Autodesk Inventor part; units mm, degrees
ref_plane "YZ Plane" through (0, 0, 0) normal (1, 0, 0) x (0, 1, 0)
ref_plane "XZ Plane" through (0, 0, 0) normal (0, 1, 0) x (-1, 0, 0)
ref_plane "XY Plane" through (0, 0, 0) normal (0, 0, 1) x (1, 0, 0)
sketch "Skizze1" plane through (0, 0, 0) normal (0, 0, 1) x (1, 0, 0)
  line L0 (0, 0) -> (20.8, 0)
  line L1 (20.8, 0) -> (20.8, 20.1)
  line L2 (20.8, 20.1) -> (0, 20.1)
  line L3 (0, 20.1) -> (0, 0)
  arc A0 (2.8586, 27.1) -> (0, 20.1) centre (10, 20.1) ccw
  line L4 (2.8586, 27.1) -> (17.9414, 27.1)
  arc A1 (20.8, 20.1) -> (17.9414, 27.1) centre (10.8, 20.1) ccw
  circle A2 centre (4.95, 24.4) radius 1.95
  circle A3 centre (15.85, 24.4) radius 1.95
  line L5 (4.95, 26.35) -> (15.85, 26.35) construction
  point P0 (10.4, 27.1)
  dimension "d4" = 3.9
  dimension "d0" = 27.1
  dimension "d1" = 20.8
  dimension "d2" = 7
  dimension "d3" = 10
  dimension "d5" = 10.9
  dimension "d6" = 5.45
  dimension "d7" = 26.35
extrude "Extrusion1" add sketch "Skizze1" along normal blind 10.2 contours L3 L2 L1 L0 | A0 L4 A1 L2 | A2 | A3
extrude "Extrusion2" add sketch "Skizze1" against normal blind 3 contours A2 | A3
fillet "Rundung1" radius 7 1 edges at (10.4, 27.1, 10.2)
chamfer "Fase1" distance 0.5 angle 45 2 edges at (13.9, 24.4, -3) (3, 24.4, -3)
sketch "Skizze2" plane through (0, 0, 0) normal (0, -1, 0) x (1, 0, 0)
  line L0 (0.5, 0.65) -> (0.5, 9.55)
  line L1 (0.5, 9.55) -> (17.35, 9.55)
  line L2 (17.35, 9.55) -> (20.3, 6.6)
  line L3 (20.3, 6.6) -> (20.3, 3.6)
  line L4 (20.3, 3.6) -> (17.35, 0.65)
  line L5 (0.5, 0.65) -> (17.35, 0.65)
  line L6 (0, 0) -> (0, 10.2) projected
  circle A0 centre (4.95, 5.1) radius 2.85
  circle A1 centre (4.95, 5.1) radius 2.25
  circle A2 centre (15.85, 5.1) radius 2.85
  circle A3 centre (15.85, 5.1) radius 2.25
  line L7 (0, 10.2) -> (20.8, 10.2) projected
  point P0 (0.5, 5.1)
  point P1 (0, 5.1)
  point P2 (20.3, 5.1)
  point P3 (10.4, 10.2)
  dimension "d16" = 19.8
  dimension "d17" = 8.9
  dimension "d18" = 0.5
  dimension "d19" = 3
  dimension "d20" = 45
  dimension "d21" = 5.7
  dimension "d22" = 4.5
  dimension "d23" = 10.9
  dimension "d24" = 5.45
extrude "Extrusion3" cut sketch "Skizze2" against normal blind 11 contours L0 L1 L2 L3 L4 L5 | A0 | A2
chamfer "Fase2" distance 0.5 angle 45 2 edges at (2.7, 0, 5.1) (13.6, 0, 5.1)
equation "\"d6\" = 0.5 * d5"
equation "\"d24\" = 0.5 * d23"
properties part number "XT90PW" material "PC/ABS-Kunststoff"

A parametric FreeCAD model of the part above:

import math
import FreeCAD as App
import Part
import Sketcher
Q = App.Units.Quantity


def edges_at(feature, points):
    """Names of the edges that pass closest to the given points."""
    edges = feature.Shape.Edges
    near = lambda p: min(range(len(edges)), key=lambda i: edges[i].distToShape(Part.Vertex(*p))[0])
    return sorted({f"Edge{near(p) + 1}" for p in points})

doc = App.newDocument("Part")
body = doc.addObject("PartDesign::Body", "Body")

sketch1 = body.newObject("Sketcher::SketchObject", "Sketch")
sketch1.AttachmentSupport = (doc.getObject("XY_Plane"), [""])
sketch1.MapMode = "FlatFace"
sketch1.addGeometry([
    Part.LineSegment(App.Vector(0, 20, 0), App.Vector(0, 0, 0)),
    Part.LineSegment(App.Vector(0, 0, 0), App.Vector(21, 0, 0)),
    Part.LineSegment(App.Vector(21, 0, 0), App.Vector(21, 20, 0)),
    Part.ArcOfCircle(Part.Circle(App.Vector(11, 20, 0), App.Vector(0, 0, 1), 10), math.radians(0), math.radians(44)),
    Part.LineSegment(App.Vector(18, 27, 0), App.Vector(3, 27, 0)),
    Part.ArcOfCircle(Part.Circle(App.Vector(10, 20, 0), App.Vector(0, 0, 1), 10), math.radians(136), math.radians(180)),
], False)
sketch1.addConstraint([
    Sketcher.Constraint("Coincident", 0, 2, 1, 1),
    Sketcher.Constraint("Coincident", 1, 2, 2, 1),
    Sketcher.Constraint("Tangent", 2, 2, 3, 1),
    Sketcher.Constraint("Coincident", 3, 2, 4, 1),
    Sketcher.Constraint("Coincident", 4, 2, 5, 1),
    Sketcher.Constraint("Tangent", 5, 2, 0, 1),
    Sketcher.Constraint("Vertical", 0),
    Sketcher.Constraint("Horizontal", 1),
    Sketcher.Constraint("Vertical", 2),
    Sketcher.Constraint("Horizontal", 4),
    Sketcher.Constraint("Coincident", 0, 2, -1, 1),
    Sketcher.Constraint("Equal", 3, 5),
    Sketcher.Constraint("Horizontal", 3, 3, 5, 3),
    Sketcher.Constraint("Radius", 3, Q("10 mm")),
    Sketcher.Constraint("DistanceX", 1, 1, 1, 2, Q("20.8 mm")),
    Sketcher.Constraint("DistanceY", 2, 2, 3, 2, Q("7 mm")),
    Sketcher.Constraint("DistanceY", -1, 1, 3, 2, Q("27.1 mm")),
])
pad1 = body.newObject("PartDesign::Pad", "Pad")
pad1.Profile = sketch1
pad1.Length = 10.2

sketch2 = body.newObject("Sketcher::SketchObject", "Sketch001")
sketch2.AttachmentSupport = (doc.getObject("XY_Plane"), [""])
sketch2.MapMode = "FlatFace"
sketch2.addGeometry([
    Part.Circle(App.Vector(5, 24.4, 0), App.Vector(0, 0, 1), 1.9),
    Part.Circle(App.Vector(15.8, 24.4, 0), App.Vector(0, 0, 1), 1.9),
], False)
sketch2.addConstraint([
    Sketcher.Constraint("Equal", 0, 1),
    Sketcher.Constraint("Horizontal", 0, 3, 1, 3),
    Sketcher.Constraint("Diameter", 0, Q("3.9 mm")),
    Sketcher.Constraint("DistanceX", 0, 3, 1, 3, Q("10.9 mm")),
    Sketcher.Constraint("DistanceY", -1, 1, 0, 3, Q("24.4 mm")),
    Sketcher.Constraint("DistanceX", -1, 1, 0, 3, Q("4.95 mm")),
])
pad2 = body.newObject("PartDesign::Pad", "Pad001")
pad2.Profile = sketch2
pad2.Length = 3
pad2.Reversed = True
doc.recompute()

fillet = body.newObject("PartDesign::Fillet", "Fillet")
fillet.Base = (pad2, edges_at(pad2, [(10.4, 27.1, 10.2)]))
fillet.Radius = 7
doc.recompute()

chamfer = body.newObject("PartDesign::Chamfer", "Chamfer")
chamfer.Base = (fillet, edges_at(fillet, [(13.9, 24.4, -3), (3, 24.4, -3)]))
chamfer.Size = 0.5

sketch3 = body.newObject("Sketcher::SketchObject", "Sketch002")
sketch3.AttachmentSupport = (doc.getObject("XZ_Plane"), [""])
sketch3.MapMode = "FlatFace"
sketch3.addGeometry([
    Part.LineSegment(App.Vector(0.5, 9.6, 0), App.Vector(0.5, 0.7, 0)),
    Part.LineSegment(App.Vector(0.5, 0.7, 0), App.Vector(17.4, 0.7, 0)),
    Part.LineSegment(App.Vector(17.4, 0.7, 0), App.Vector(20.3, 3.6, 0)),
    Part.LineSegment(App.Vector(20.3, 3.6, 0), App.Vector(20.3, 6.6, 0)),
    Part.LineSegment(App.Vector(20.3, 6.6, 0), App.Vector(17.4, 9.6, 0)),
    Part.LineSegment(App.Vector(17.4, 9.6, 0), App.Vector(0.5, 9.6, 0)),
    Part.Circle(App.Vector(5, 5.1, 0), App.Vector(0, 0, 1), 2.2),
    Part.Circle(App.Vector(15.8, 5.1, 0), App.Vector(0, 0, 1), 2.2),
], False)
sketch3.addConstraint([
    Sketcher.Constraint("Coincident", 0, 2, 1, 1),
    Sketcher.Constraint("Coincident", 1, 2, 2, 1),
    Sketcher.Constraint("Coincident", 2, 2, 3, 1),
    Sketcher.Constraint("Coincident", 3, 2, 4, 1),
    Sketcher.Constraint("Coincident", 4, 2, 5, 1),
    Sketcher.Constraint("Coincident", 5, 2, 0, 1),
    Sketcher.Constraint("Vertical", 0),
    Sketcher.Constraint("Horizontal", 1),
    Sketcher.Constraint("Vertical", 3),
    Sketcher.Constraint("Horizontal", 5),
    Sketcher.Constraint("Equal", 6, 7),
    Sketcher.Constraint("Perpendicular", 2, 4),
    Sketcher.Constraint("Horizontal", 6, 3, 7, 3),
    Sketcher.Constraint("Vertical", 1, 2, 4, 2),
    Sketcher.Constraint("Equal", 2, 4),
    Sketcher.Constraint("Diameter", 6, Q("4.5 mm")),
    Sketcher.Constraint("DistanceY", 3, 1, 3, 2, Q("3 mm")),
    Sketcher.Constraint("DistanceY", 0, 2, 0, 1, Q("8.9 mm")),
    Sketcher.Constraint("DistanceX", -1, 1, 0, 2, Q("0.5 mm")),
    Sketcher.Constraint("DistanceX", 6, 3, 7, 3, Q("10.9 mm")),
    Sketcher.Constraint("DistanceX", 0, 2, 2, 2, Q("19.8 mm")),
    Sketcher.Constraint("DistanceY", -1, 1, 6, 3, Q("5.1 mm")),
    Sketcher.Constraint("DistanceY", -1, 1, 2, 2, Q("3.6 mm")),
    Sketcher.Constraint("DistanceX", 7, 3, 1, 2, Q("1.5 mm")),
])
pocket1 = body.newObject("PartDesign::Pocket", "Pocket")
pocket1.Profile = sketch3
pocket1.Length = 11
doc.recompute()

chamfer2 = body.newObject("PartDesign::Chamfer", "Chamfer001")
chamfer2.Base = (pocket1, edges_at(pocket1, [(2.7, 0, 5.1), (13.6, 0, 5.1)]))
chamfer2.Size = 0.5

doc.recompute()
